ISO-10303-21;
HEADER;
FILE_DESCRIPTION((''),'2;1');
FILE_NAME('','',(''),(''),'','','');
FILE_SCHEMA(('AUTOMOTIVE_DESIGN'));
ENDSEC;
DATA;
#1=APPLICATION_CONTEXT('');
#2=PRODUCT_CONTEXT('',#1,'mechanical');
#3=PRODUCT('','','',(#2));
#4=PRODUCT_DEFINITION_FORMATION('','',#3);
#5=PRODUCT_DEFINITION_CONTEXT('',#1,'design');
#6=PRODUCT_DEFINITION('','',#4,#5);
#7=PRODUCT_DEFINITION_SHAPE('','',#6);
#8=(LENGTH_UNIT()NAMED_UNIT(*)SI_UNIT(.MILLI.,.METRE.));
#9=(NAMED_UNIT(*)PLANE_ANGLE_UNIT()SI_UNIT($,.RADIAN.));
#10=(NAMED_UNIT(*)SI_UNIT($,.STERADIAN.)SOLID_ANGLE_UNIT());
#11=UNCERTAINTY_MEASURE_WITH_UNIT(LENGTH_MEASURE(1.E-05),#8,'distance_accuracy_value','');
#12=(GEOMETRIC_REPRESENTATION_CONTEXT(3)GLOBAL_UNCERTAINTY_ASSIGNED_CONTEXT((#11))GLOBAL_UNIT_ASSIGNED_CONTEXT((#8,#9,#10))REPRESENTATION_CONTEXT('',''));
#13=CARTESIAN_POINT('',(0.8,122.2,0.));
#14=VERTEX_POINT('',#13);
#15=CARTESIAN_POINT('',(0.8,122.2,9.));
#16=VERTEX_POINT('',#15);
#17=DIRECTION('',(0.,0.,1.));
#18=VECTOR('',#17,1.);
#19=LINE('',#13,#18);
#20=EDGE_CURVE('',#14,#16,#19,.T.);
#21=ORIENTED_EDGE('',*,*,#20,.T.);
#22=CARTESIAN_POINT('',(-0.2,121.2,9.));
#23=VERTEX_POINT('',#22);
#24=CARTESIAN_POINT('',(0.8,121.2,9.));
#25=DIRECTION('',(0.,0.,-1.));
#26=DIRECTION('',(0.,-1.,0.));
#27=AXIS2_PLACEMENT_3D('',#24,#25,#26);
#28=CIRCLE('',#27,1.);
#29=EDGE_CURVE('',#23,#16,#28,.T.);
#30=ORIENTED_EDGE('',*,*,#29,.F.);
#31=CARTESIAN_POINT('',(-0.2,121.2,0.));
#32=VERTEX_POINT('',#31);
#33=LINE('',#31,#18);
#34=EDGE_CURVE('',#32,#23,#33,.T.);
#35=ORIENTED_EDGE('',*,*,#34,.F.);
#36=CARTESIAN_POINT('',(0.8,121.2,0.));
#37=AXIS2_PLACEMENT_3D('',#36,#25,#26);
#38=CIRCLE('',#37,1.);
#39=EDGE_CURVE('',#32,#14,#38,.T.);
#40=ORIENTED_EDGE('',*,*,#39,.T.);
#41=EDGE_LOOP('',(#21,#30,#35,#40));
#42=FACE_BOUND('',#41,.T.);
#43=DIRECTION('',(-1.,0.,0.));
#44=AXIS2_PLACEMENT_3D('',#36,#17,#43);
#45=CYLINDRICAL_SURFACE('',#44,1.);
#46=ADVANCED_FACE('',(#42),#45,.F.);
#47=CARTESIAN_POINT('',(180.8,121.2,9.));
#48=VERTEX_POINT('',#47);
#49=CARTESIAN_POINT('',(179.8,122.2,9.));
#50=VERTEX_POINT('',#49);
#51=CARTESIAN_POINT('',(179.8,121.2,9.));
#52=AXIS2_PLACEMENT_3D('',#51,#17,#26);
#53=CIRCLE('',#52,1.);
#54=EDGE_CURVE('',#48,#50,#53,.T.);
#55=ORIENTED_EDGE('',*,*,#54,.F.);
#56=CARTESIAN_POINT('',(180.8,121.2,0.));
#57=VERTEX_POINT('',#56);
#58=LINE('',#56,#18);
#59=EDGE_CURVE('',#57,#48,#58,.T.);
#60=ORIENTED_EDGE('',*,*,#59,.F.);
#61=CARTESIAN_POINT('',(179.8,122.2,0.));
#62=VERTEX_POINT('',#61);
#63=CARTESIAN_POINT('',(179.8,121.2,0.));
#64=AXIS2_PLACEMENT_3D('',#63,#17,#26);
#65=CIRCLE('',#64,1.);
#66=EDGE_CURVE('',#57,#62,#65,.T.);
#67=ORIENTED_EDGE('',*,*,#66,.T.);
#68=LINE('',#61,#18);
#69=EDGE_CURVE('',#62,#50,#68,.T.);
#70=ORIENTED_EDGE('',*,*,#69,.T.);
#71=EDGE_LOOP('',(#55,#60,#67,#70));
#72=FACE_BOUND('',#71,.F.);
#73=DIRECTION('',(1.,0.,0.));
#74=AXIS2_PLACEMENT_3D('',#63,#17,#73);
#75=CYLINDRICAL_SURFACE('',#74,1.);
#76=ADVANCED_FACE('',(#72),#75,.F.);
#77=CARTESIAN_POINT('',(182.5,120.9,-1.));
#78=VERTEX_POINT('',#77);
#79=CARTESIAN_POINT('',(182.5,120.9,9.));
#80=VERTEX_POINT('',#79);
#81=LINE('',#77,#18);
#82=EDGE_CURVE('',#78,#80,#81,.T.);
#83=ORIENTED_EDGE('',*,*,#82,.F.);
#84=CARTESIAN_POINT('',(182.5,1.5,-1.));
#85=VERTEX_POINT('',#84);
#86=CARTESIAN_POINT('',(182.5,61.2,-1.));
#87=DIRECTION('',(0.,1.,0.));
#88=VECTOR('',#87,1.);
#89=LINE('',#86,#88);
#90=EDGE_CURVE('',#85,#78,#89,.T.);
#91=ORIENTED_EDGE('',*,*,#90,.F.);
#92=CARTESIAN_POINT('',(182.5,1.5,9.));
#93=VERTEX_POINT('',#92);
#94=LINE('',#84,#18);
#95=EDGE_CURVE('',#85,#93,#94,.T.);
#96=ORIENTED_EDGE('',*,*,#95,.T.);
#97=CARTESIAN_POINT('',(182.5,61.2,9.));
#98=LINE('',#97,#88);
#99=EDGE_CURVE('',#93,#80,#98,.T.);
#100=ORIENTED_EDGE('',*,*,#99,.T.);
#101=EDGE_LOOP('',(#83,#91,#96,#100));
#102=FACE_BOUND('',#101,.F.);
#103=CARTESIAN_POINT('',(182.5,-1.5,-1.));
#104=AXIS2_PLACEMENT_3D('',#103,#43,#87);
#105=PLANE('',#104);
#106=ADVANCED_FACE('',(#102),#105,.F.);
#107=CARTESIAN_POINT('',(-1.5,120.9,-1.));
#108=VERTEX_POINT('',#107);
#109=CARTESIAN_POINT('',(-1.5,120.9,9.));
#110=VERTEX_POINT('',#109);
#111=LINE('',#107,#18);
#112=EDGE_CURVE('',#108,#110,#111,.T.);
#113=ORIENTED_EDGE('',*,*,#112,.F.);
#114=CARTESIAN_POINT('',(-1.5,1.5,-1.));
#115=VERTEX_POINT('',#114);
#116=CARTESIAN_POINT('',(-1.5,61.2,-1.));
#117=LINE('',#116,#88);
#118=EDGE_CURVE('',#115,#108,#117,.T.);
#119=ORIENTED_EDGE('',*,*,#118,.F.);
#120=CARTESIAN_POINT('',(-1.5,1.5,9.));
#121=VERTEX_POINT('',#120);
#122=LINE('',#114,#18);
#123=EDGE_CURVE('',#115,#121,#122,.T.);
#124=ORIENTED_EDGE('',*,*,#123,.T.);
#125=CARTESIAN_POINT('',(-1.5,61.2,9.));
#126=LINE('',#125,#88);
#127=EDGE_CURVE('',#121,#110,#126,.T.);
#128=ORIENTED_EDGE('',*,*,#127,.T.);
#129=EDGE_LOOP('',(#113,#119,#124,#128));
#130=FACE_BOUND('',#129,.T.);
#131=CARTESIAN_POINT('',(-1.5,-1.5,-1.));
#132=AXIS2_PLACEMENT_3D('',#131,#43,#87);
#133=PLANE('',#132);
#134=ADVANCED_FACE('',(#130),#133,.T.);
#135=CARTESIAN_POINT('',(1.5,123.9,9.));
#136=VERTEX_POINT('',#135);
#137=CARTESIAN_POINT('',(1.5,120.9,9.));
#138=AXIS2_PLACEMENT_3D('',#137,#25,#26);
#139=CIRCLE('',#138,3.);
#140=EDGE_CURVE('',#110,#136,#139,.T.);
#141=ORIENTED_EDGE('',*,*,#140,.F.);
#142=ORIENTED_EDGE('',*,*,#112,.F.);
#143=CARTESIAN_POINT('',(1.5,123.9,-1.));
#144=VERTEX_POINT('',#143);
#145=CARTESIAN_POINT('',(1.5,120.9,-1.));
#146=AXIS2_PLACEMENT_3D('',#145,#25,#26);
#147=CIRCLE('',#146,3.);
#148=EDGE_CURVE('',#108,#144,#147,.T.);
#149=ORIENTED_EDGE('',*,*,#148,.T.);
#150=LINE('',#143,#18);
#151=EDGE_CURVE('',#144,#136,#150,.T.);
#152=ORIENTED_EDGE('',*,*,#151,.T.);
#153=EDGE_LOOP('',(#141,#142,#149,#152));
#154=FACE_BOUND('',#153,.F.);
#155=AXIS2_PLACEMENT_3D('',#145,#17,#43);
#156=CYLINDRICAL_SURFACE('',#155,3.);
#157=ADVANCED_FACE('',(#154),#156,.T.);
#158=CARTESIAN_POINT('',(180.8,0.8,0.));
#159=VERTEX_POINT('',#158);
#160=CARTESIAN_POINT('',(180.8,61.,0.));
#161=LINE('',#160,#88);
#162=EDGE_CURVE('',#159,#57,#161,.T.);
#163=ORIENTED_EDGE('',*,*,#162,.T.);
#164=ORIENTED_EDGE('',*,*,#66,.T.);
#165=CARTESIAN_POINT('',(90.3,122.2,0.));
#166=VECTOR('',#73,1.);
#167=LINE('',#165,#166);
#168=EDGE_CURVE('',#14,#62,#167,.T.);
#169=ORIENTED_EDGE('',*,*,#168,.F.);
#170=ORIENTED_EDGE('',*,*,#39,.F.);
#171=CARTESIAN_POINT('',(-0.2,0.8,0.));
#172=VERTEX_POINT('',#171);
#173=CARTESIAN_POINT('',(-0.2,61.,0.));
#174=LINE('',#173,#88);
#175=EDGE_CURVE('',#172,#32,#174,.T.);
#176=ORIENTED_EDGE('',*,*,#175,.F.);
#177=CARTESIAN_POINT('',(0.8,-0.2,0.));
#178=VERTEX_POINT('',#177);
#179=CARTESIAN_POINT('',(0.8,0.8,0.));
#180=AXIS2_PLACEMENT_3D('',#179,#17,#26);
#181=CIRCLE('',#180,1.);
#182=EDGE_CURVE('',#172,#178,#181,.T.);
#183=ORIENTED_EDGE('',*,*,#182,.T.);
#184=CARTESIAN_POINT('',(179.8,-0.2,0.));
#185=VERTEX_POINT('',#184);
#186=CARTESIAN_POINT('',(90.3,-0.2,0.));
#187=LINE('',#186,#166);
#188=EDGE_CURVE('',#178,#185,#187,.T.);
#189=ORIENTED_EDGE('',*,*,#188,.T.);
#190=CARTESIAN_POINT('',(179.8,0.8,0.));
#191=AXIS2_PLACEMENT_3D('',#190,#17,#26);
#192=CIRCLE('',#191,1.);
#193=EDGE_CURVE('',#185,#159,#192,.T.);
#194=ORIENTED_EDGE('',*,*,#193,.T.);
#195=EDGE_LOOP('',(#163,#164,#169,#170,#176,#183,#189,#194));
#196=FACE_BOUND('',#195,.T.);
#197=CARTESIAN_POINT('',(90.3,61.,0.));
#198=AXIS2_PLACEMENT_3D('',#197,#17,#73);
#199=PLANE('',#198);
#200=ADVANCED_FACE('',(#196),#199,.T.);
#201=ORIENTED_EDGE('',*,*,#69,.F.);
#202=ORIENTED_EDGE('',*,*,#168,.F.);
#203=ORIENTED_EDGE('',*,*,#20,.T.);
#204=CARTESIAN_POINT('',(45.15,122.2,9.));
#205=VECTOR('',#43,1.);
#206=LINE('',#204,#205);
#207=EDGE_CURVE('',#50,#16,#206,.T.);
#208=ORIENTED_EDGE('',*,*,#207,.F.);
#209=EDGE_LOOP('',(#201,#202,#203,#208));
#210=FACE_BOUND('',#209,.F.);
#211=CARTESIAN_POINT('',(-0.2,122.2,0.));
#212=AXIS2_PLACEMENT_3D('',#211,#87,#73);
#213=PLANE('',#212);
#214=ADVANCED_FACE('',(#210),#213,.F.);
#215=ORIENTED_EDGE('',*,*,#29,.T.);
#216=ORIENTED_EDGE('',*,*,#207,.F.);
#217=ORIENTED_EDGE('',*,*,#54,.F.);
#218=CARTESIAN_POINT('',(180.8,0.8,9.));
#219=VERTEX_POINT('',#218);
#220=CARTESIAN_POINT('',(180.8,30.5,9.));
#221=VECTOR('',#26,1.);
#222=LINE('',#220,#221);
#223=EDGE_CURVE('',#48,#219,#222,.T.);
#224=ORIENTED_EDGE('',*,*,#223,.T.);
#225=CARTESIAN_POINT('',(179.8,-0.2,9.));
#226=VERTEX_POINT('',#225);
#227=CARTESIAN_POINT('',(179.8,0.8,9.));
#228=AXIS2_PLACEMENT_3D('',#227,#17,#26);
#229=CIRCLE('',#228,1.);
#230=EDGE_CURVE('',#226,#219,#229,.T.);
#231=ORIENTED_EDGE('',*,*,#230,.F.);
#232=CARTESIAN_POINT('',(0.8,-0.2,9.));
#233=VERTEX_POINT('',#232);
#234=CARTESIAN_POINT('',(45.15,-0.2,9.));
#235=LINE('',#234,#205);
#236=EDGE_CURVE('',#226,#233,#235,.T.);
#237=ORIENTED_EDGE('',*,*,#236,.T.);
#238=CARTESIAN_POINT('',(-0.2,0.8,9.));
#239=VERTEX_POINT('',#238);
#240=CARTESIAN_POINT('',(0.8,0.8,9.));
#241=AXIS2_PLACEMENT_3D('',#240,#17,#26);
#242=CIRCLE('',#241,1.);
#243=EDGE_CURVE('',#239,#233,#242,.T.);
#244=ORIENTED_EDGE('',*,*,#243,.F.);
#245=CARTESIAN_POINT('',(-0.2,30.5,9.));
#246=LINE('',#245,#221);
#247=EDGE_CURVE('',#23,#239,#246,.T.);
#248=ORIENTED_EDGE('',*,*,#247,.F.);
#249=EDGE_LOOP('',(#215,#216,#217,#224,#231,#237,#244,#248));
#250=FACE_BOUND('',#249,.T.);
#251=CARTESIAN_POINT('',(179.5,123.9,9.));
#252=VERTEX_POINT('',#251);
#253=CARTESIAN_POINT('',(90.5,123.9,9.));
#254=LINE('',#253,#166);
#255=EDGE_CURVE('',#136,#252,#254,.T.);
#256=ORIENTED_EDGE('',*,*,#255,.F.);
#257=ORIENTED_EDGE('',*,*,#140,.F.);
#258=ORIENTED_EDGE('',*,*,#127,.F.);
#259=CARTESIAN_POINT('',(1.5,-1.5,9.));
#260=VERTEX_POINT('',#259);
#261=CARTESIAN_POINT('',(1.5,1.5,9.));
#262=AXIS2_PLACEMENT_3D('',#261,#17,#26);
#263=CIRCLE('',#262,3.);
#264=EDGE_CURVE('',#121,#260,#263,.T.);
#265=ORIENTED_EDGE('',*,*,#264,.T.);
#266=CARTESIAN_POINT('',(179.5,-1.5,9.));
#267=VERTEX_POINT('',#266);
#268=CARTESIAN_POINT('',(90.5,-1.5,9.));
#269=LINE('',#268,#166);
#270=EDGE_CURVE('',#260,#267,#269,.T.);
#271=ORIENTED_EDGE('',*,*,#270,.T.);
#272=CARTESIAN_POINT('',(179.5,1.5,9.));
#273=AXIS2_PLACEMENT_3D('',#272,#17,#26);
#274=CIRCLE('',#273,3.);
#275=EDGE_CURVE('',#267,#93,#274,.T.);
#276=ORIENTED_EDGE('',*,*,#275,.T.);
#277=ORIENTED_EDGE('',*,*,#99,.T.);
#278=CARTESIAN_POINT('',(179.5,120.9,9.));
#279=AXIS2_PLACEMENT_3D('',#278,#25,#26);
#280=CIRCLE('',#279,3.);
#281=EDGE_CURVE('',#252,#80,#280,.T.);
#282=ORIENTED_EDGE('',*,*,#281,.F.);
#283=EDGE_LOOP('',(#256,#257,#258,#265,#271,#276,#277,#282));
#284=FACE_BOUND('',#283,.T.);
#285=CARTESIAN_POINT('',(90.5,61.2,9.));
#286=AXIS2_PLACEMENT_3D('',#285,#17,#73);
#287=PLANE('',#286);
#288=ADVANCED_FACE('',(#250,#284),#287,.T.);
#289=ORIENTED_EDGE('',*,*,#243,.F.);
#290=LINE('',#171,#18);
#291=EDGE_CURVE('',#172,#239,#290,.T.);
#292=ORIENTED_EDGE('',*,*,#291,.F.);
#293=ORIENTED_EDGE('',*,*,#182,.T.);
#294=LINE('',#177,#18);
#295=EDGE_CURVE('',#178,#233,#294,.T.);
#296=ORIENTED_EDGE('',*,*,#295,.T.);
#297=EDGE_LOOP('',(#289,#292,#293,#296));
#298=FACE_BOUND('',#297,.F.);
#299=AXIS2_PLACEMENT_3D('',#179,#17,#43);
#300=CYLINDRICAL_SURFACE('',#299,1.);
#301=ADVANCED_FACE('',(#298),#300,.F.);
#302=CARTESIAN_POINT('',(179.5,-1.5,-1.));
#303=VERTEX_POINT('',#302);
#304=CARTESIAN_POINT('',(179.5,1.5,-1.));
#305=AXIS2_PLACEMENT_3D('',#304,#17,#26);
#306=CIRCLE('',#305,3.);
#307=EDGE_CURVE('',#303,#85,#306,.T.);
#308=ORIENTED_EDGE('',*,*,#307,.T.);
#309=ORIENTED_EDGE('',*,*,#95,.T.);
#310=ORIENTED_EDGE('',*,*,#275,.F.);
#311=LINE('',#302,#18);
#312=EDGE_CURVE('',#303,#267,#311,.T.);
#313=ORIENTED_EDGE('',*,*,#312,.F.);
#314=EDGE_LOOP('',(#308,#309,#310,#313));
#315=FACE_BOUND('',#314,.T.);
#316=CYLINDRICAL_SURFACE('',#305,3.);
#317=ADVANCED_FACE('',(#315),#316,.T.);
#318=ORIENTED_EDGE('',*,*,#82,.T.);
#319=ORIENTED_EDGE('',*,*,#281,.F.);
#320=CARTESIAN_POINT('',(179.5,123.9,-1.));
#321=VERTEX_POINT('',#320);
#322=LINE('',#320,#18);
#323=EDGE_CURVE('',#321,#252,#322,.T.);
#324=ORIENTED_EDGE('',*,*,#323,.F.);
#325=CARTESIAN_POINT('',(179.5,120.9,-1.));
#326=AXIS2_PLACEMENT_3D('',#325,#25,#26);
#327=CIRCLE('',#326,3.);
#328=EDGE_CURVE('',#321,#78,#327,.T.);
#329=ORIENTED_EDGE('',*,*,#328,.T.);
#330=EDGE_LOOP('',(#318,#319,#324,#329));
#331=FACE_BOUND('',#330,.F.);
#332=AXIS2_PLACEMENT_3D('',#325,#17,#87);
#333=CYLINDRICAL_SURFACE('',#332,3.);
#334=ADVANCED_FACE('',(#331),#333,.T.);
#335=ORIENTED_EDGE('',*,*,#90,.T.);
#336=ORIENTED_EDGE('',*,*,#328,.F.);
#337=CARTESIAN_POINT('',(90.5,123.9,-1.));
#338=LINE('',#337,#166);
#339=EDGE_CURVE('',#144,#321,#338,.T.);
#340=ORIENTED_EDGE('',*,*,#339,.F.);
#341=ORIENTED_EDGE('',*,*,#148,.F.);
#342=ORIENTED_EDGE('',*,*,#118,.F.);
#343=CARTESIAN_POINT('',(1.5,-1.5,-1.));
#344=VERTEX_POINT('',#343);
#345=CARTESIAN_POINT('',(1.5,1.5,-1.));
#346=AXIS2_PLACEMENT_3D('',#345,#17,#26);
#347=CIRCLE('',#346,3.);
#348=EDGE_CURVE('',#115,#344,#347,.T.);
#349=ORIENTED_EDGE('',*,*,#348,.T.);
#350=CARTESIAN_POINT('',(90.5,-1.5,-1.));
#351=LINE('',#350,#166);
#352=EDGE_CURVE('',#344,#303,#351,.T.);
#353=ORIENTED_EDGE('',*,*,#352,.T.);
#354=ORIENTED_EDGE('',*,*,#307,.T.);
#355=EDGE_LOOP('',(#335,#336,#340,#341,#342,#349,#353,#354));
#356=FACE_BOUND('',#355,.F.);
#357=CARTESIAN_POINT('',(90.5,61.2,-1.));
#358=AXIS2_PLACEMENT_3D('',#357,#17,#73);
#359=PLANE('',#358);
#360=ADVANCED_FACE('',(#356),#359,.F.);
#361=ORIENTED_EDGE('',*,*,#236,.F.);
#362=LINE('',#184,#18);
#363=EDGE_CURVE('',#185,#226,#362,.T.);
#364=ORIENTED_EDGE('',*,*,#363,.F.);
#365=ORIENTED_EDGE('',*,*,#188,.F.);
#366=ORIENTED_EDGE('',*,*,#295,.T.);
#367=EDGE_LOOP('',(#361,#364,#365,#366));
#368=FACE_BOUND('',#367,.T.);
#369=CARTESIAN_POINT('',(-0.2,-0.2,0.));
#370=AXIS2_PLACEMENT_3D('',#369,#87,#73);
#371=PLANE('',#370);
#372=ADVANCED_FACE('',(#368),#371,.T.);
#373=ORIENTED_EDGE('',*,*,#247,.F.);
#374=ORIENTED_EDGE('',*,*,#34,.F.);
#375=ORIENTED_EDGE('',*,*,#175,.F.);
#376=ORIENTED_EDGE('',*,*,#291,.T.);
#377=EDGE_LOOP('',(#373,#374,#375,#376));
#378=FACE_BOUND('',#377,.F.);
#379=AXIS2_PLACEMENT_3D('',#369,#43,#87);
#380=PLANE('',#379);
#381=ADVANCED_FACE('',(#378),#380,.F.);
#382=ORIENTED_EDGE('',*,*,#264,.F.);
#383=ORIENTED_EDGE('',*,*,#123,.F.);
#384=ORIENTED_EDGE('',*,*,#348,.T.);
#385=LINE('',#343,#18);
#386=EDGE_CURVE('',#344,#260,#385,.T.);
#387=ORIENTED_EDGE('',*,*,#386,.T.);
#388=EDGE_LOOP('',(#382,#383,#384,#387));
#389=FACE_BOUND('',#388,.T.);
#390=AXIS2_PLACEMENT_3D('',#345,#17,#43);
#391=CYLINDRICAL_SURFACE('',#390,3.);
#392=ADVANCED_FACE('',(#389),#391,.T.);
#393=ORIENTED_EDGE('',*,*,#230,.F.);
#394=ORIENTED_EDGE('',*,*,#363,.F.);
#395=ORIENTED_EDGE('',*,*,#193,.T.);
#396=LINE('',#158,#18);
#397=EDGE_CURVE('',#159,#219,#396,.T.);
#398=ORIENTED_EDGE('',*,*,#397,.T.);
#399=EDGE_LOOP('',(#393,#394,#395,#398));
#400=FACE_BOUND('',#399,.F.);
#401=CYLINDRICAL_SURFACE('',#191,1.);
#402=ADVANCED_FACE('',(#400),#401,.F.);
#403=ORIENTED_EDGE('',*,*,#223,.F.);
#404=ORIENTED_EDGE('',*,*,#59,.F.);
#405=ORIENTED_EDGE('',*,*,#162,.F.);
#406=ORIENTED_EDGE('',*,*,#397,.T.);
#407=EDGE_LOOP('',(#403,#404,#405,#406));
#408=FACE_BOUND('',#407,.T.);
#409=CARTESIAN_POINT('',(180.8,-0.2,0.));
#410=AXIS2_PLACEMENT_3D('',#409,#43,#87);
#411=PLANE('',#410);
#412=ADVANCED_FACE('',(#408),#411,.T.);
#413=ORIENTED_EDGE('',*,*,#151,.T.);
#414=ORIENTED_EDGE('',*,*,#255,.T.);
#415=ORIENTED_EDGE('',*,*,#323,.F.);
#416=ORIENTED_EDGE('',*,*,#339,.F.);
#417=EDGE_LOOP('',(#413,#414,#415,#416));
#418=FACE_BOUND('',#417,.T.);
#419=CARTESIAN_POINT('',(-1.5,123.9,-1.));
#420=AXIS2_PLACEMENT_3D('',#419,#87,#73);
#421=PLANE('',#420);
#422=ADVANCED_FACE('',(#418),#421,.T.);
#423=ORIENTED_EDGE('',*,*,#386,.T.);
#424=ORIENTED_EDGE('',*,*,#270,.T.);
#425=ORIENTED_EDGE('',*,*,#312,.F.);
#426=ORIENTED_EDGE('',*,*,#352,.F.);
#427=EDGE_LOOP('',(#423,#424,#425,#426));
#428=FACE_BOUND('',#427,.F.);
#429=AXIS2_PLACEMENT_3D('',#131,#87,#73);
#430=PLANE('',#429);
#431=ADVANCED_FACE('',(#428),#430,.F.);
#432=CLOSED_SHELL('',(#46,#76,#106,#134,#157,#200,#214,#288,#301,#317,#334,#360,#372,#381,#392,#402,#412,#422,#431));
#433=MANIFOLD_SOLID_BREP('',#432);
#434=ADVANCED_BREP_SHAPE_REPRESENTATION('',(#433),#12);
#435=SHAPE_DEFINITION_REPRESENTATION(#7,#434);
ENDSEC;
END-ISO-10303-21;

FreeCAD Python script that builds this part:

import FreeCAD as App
import Part
import Sketcher
from FreeCAD import Vector


def edges_at(feature, points):
    """Names of the edges that pass closest to the given points."""
    edges = feature.Shape.Edges
    near = lambda p: min(range(len(edges)), key=lambda i: edges[i].distToShape(Part.Vertex(*p))[0])
    return sorted({f"Edge{near(p) + 1}" for p in points})

doc = App.newDocument("Part")
params = doc.addObject("Spreadsheet::Sheet", "Params")
for row, (alias, value) in enumerate([
    ("sketch1_width", "181 mm"),
    ("sketch1_height", "122.4 mm"),
    ("pad1_length", "10 mm"),
    ("sketch2_width", "184 mm"),
    ("sketch2_height", "125.4 mm"),
    ("pad2_length", "10 mm"),
    ("fillet_radius", "3 mm"),
    ("fillet2_radius", "1 mm"),
], start=1):
    params.set(f"A{row}", alias)
    params.set(f"B{row}", "=" + value)
    params.setAlias(f"B{row}", alias)

body = doc.addObject("PartDesign::Body", "Body")

sketch1 = body.newObject("Sketcher::SketchObject", "Sketch")
sketch1.AttachmentSupport = (doc.getObject("XY_Plane"), [""])
sketch1.MapMode = "FlatFace"
sketch1.addGeometry(Part.LineSegment(Vector(0, 122, 0), Vector(0, 0, 0)), False)
sketch1.addGeometry(Part.LineSegment(Vector(0, 0, 0), Vector(181, 0, 0)), False)
sketch1.addGeometry(Part.LineSegment(Vector(181, 0, 0), Vector(181, 122, 0)), False)
sketch1.addGeometry(Part.LineSegment(Vector(181, 122, 0), Vector(0, 122, 0)), False)
sketch1.addConstraint(Sketcher.Constraint("Coincident", 0, 2, 1, 1))
sketch1.addConstraint(Sketcher.Constraint("Coincident", 1, 2, 2, 1))
sketch1.addConstraint(Sketcher.Constraint("Coincident", 2, 2, 3, 1))
sketch1.addConstraint(Sketcher.Constraint("Coincident", 3, 2, 0, 1))
sketch1.addConstraint(Sketcher.Constraint("Vertical", 0))
sketch1.addConstraint(Sketcher.Constraint("Horizontal", 1))
sketch1.addConstraint(Sketcher.Constraint("Vertical", 2))
sketch1.addConstraint(Sketcher.Constraint("Horizontal", 3))
sketch1.addConstraint(Sketcher.Constraint("DistanceX", 1, 1, 1, 2, 181.0))
sketch1.addConstraint(Sketcher.Constraint("DistanceY", 0, 2, 0, 1, 122.4))
sketch1.addConstraint(Sketcher.Constraint("DistanceX", 0, 2, -1, 1, 0.2))
sketch1.addConstraint(Sketcher.Constraint("DistanceY", 0, 2, -1, 1, 0.2))
sketch1.setExpression("Constraints[8]", "Params.sketch1_width")
sketch1.setExpression("Constraints[9]", "Params.sketch1_height")
pad1 = body.newObject("PartDesign::Pad", "Pad")
pad1.Profile = sketch1
pad1.setExpression("Length", "Params.pad1_length")
body2 = doc.addObject("PartDesign::Body", "Body001")

sketch2 = body2.newObject("Sketcher::SketchObject", "Sketch001")
sketch2.AttachmentSupport = (doc.getObject("XY_Plane001"), [""])
sketch2.MapMode = "FlatFace"
sketch2.AttachmentOffset = App.Placement(Vector(0, 0, -1), App.Rotation())
sketch2.addGeometry(Part.LineSegment(Vector(-2, 124, 0), Vector(-2, -2, 0)), False)
sketch2.addGeometry(Part.LineSegment(Vector(-2, -2, 0), Vector(182, -2, 0)), False)
sketch2.addGeometry(Part.LineSegment(Vector(182, -2, 0), Vector(182, 124, 0)), False)
sketch2.addGeometry(Part.LineSegment(Vector(182, 124, 0), Vector(-2, 124, 0)), False)
sketch2.addConstraint(Sketcher.Constraint("Coincident", 0, 2, 1, 1))
sketch2.addConstraint(Sketcher.Constraint("Coincident", 1, 2, 2, 1))
sketch2.addConstraint(Sketcher.Constraint("Coincident", 2, 2, 3, 1))
sketch2.addConstraint(Sketcher.Constraint("Coincident", 3, 2, 0, 1))
sketch2.addConstraint(Sketcher.Constraint("Vertical", 0))
sketch2.addConstraint(Sketcher.Constraint("Horizontal", 1))
sketch2.addConstraint(Sketcher.Constraint("Vertical", 2))
sketch2.addConstraint(Sketcher.Constraint("Horizontal", 3))
sketch2.addConstraint(Sketcher.Constraint("DistanceX", 1, 1, 1, 2, 184.0))
sketch2.addConstraint(Sketcher.Constraint("DistanceY", 0, 2, 0, 1, 125.4))
sketch2.addConstraint(Sketcher.Constraint("DistanceX", 0, 2, -1, 1, 1.5))
sketch2.addConstraint(Sketcher.Constraint("DistanceY", 0, 2, -1, 1, 1.5))
sketch2.setExpression("Constraints[8]", "Params.sketch2_width")
sketch2.setExpression("Constraints[9]", "Params.sketch2_height")
pad2 = body2.newObject("PartDesign::Pad", "Pad001")
pad2.Profile = sketch2
pad2.setExpression("Length", "Params.pad2_length")
doc.recompute()

boolean = body2.newObject("PartDesign::Boolean", "Boolean")
boolean.Type = "Cut"
boolean.addObjects([body])
doc.recompute()

fillet = body2.newObject("PartDesign::Fillet", "Fillet")
fillet.Base = (boolean, edges_at(boolean, [
    (-1.5, -1.5, 4),
    (-1.5, 123.9, 4),
    (182.5, -1.5, 4),
    (182.5, 123.9, 4),
]))
fillet.setExpression("Radius", "Params.fillet_radius")
doc.recompute()

fillet2 = body2.newObject("PartDesign::Fillet", "Fillet001")
fillet2.Base = (fillet, edges_at(fillet, [
    (180.8, -0.2, 4.5),
    (-0.2, -0.2, 4.5),
    (180.8, 122.2, 4.5),
    (-0.2, 122.2, 4.5),
]))
fillet2.setExpression("Radius", "Params.fillet2_radius")

doc.recompute()
